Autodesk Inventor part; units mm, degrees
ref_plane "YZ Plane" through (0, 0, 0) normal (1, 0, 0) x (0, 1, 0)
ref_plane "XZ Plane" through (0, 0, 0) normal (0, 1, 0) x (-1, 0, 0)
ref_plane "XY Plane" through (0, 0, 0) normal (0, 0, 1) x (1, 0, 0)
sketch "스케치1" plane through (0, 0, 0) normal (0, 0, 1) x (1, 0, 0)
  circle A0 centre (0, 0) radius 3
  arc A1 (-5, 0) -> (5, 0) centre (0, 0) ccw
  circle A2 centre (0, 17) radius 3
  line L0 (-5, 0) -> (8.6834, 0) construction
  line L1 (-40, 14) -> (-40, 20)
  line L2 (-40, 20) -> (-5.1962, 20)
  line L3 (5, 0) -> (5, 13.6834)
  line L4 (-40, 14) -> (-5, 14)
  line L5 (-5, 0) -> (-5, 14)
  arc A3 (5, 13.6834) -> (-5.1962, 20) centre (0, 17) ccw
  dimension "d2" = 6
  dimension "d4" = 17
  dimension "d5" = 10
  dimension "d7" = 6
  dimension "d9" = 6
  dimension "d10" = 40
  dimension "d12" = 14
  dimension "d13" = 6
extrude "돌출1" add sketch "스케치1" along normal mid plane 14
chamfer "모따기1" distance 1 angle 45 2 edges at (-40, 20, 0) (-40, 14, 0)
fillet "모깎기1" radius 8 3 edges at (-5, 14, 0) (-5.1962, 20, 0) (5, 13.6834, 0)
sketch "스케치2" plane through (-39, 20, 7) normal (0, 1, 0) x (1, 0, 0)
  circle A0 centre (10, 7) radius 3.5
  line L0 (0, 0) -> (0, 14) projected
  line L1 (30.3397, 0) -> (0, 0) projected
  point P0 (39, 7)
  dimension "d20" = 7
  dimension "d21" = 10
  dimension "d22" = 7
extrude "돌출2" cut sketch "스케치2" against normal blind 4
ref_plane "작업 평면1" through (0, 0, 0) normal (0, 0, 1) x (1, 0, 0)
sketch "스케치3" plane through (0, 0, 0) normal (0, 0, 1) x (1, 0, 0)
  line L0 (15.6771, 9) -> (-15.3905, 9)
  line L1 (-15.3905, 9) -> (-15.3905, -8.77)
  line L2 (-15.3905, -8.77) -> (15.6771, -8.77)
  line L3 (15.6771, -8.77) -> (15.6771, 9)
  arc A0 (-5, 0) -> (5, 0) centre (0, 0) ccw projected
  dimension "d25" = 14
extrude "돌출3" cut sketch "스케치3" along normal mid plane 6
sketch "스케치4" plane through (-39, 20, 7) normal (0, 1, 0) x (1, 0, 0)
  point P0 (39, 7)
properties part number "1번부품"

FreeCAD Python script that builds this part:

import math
import FreeCAD as App
import Part
import Sketcher
from FreeCAD import Vector
Q = App.Units.Quantity


def edges_at(feature, points):
    """Names of the edges that pass closest to the given points."""
    edges = feature.Shape.Edges
    near = lambda p: min(range(len(edges)), key=lambda i: edges[i].distToShape(Part.Vertex(*p))[0])
    return sorted({f"Edge{near(p) + 1}" for p in points})


def add_polygon(sketch, points):
    """Adds a closed chain of lines whose ends are joined by coincident constraints."""
    first, n = sketch.GeometryCount, len(points)
    for a, b in zip(points, points[1:] + points[:1]):
        sketch.addGeometry(Part.LineSegment(App.Vector(*a, 0), App.Vector(*b, 0)), False)
    for i in range(n):
        sketch.addConstraint(Sketcher.Constraint("Coincident", first + i, 2, first + (i + 1) % n, 1))

doc = App.newDocument("Part")
params = doc.addObject("Spreadsheet::Sheet", "Params")
for row, (alias, value) in enumerate([
    ("sketch1_diameter", "6 mm"),
    ("sketch1_radius", "5 mm"),
    ("sketch1_radius2", "6 mm"),
    ("sketch1_height", "14 mm"),
    ("sketch1_height2", "6 mm"),
    ("pad1_length", "14 mm"),
    ("chamfer_size", "1 mm"),
    ("fillet_radius", "8 mm"),
    ("sketch2_diameter", "7 mm"),
    ("pocket1_length", "4 mm"),
    ("sketch3_height", "17.77 mm"),
    ("pocket2_length", "6 mm"),
], start=1):
    params.set(f"A{row}", alias)
    params.set(f"B{row}", "=" + value)
    params.setAlias(f"B{row}", alias)

body = doc.addObject("PartDesign::Body", "Body")

# Sketch on XY plane
sketch1 = body.newObject("Sketcher::SketchObject", "Sketch")
sketch1.AttachmentSupport = (doc.getObject("XY_Plane"), [""])
sketch1.MapMode = "FlatFace"
sketch1.addGeometry(Part.LineSegment(Vector(-5, 14, 0), Vector(-5, 0, 0)), False)
sketch1.addGeometry(Part.ArcOfCircle(Part.Circle(Vector(0, 0, 0), Vector(0, 0, 1), 5), math.radians(180), math.radians(360)), False)
sketch1.addGeometry(Part.LineSegment(Vector(5, 0, 0), Vector(5, 13.7, 0)), False)
sketch1.addGeometry(Part.ArcOfCircle(Part.Circle(Vector(0, 17, 0), Vector(0, 0, 1), 6), math.radians(-34), math.radians(150)), False)
sketch1.addGeometry(Part.LineSegment(Vector(-5.2, 20, 0), Vector(-40, 20, 0)), False)
sketch1.addGeometry(Part.LineSegment(Vector(-40, 20, 0), Vector(-40, 14, 0)), False)
sketch1.addGeometry(Part.LineSegment(Vector(-40, 14, 0), Vector(-5, 14, 0)), False)
sketch1.addGeometry(Part.Circle(Vector(0, 0, 0), Vector(0, 0, 1), 3), False)
sketch1.addGeometry(Part.Circle(Vector(0, 17, 0), Vector(0, 0, 1), 3), False)
sketch1.addConstraint(Sketcher.Constraint("Tangent", 0, 2, 1, 1))
sketch1.addConstraint(Sketcher.Constraint("Tangent", 1, 2, 2, 1))
sketch1.addConstraint(Sketcher.Constraint("Coincident", 2, 2, 3, 1))
sketch1.addConstraint(Sketcher.Constraint("Coincident", 3, 2, 4, 1))
sketch1.addConstraint(Sketcher.Constraint("Coincident", 4, 2, 5, 1))
sketch1.addConstraint(Sketcher.Constraint("Coincident", 5, 2, 6, 1))
sketch1.addConstraint(Sketcher.Constraint("Coincident", 6, 2, 0, 1))
sketch1.addConstraint(Sketcher.Constraint("Vertical", 0))
sketch1.addConstraint(Sketcher.Constraint("Vertical", 2))
sketch1.addConstraint(Sketcher.Constraint("Horizontal", 4))
sketch1.addConstraint(Sketcher.Constraint("Vertical", 5))
sketch1.addConstraint(Sketcher.Constraint("Horizontal", 6))
sketch1.addConstraint(Sketcher.Constraint("Coincident", 1, 3, -1, 1))
sketch1.addConstraint(Sketcher.Constraint("Coincident", 7, 3, -1, 1))
sketch1.addConstraint(Sketcher.Constraint("Coincident", 8, 3, 3, 3))
sketch1.addConstraint(Sketcher.Constraint("Equal", 7, 8))
sketch1.addConstraint(Sketcher.Constraint("PointOnObject", 3, 3, -2))
sketch1.addConstraint(Sketcher.Constraint("Diameter", 7, Q("6 mm")))
sketch1.addConstraint(Sketcher.Constraint("Radius", 1, Q("5 mm")))
sketch1.addConstraint(Sketcher.Constraint("Radius", 3, Q("6 mm")))
sketch1.addConstraint(Sketcher.Constraint("DistanceY", 0, 2, 0, 1, Q("14 mm")))
sketch1.addConstraint(Sketcher.Constraint("DistanceY", 5, 2, 5, 1, Q("6 mm")))
sketch1.addConstraint(Sketcher.Constraint("DistanceY", -1, 1, 3, 3, Q("17 mm")))
sketch1.addConstraint(Sketcher.Constraint("DistanceX", 4, 2, -1, 1, Q("40 mm")))
sketch1.setExpression("Constraints[17]", "Params.sketch1_diameter")
sketch1.setExpression("Constraints[18]", "Params.sketch1_radius")
sketch1.setExpression("Constraints[19]", "Params.sketch1_radius2")
sketch1.setExpression("Constraints[20]", "Params.sketch1_height")
sketch1.setExpression("Constraints[21]", "Params.sketch1_height2")
pad1 = body.newObject("PartDesign::Pad", "Pad")
pad1.Profile = sketch1
pad1.setExpression("Length", "Params.pad1_length")
pad1.Midplane = True
doc.recompute()

chamfer = body.newObject("PartDesign::Chamfer", "Chamfer")
chamfer.Base = (pad1, edges_at(pad1, [(-40, 20, 0), (-40, 14, 0)]))
chamfer.setExpression("Size", "Params.chamfer_size")
doc.recompute()

fillet = body.newObject("PartDesign::Fillet", "Fillet")
fillet.Base = (chamfer, edges_at(chamfer, [(-5, 14, 0), (-5.196, 20, 0), (5, 13.683, 0)]))
fillet.setExpression("Radius", "Params.fillet_radius")

# Sketch on XZ plane
sketch2 = body.newObject("Sketcher::SketchObject", "Sketch001")
sketch2.AttachmentSupport = (doc.getObject("XZ_Plane"), [""])
sketch2.MapMode = "FlatFace"
sketch2.AttachmentOffset = App.Placement(Vector(0, 0, -20), App.Rotation())
sketch2.addGeometry(Part.Circle(Vector(-29, 0, 0), Vector(0, 0, 1), 3.5), False)
sketch2.addConstraint(Sketcher.Constraint("PointOnObject", 0, 3, -1))
sketch2.addConstraint(Sketcher.Constraint("Diameter", 0, Q("7 mm")))
sketch2.addConstraint(Sketcher.Constraint("DistanceX", 0, 3, -1, 1, Q("29 mm")))
sketch2.setExpression("Constraints[1]", "Params.sketch2_diameter")
pocket1 = body.newObject("PartDesign::Pocket", "Pocket")
pocket1.Profile = sketch2
pocket1.setExpression("Length", "Params.pocket1_length")
pocket1.Reversed = True

# Sketch on XY plane
sketch3 = body.newObject("Sketcher::SketchObject", "Sketch002")
sketch3.AttachmentSupport = (doc.getObject("XY_Plane"), [""])
sketch3.MapMode = "FlatFace"
add_polygon(sketch3, [(16, -9), (16, 9), (-15, 9), (-15, -9)])  # lines 0-3
sketch3.addConstraint(Sketcher.Constraint("Vertical", 0))
sketch3.addConstraint(Sketcher.Constraint("Horizontal", 1))
sketch3.addConstraint(Sketcher.Constraint("Vertical", 2))
sketch3.addConstraint(Sketcher.Constraint("Horizontal", 3))
sketch3.addConstraint(Sketcher.Constraint("DistanceY", -1, 1, 0, 2, Q("9 mm")))
sketch3.addConstraint(Sketcher.Constraint("DistanceY", 0, 1, 0, 2, Q("17.77 mm")))
sketch3.addConstraint(Sketcher.Constraint("DistanceX", 1, 2, 1, 1, Q("31.0676 mm")))
sketch3.addConstraint(Sketcher.Constraint("DistanceX", -1, 1, 0, 2, Q("15.677 mm")))
sketch3.setExpression("Constraints[9]", "Params.sketch3_height")
pocket2 = body.newObject("PartDesign::Pocket", "Pocket001")
pocket2.Profile = sketch3
pocket2.setExpression("Length", "Params.pocket2_length")
pocket2.Midplane = True

doc.recompute()
